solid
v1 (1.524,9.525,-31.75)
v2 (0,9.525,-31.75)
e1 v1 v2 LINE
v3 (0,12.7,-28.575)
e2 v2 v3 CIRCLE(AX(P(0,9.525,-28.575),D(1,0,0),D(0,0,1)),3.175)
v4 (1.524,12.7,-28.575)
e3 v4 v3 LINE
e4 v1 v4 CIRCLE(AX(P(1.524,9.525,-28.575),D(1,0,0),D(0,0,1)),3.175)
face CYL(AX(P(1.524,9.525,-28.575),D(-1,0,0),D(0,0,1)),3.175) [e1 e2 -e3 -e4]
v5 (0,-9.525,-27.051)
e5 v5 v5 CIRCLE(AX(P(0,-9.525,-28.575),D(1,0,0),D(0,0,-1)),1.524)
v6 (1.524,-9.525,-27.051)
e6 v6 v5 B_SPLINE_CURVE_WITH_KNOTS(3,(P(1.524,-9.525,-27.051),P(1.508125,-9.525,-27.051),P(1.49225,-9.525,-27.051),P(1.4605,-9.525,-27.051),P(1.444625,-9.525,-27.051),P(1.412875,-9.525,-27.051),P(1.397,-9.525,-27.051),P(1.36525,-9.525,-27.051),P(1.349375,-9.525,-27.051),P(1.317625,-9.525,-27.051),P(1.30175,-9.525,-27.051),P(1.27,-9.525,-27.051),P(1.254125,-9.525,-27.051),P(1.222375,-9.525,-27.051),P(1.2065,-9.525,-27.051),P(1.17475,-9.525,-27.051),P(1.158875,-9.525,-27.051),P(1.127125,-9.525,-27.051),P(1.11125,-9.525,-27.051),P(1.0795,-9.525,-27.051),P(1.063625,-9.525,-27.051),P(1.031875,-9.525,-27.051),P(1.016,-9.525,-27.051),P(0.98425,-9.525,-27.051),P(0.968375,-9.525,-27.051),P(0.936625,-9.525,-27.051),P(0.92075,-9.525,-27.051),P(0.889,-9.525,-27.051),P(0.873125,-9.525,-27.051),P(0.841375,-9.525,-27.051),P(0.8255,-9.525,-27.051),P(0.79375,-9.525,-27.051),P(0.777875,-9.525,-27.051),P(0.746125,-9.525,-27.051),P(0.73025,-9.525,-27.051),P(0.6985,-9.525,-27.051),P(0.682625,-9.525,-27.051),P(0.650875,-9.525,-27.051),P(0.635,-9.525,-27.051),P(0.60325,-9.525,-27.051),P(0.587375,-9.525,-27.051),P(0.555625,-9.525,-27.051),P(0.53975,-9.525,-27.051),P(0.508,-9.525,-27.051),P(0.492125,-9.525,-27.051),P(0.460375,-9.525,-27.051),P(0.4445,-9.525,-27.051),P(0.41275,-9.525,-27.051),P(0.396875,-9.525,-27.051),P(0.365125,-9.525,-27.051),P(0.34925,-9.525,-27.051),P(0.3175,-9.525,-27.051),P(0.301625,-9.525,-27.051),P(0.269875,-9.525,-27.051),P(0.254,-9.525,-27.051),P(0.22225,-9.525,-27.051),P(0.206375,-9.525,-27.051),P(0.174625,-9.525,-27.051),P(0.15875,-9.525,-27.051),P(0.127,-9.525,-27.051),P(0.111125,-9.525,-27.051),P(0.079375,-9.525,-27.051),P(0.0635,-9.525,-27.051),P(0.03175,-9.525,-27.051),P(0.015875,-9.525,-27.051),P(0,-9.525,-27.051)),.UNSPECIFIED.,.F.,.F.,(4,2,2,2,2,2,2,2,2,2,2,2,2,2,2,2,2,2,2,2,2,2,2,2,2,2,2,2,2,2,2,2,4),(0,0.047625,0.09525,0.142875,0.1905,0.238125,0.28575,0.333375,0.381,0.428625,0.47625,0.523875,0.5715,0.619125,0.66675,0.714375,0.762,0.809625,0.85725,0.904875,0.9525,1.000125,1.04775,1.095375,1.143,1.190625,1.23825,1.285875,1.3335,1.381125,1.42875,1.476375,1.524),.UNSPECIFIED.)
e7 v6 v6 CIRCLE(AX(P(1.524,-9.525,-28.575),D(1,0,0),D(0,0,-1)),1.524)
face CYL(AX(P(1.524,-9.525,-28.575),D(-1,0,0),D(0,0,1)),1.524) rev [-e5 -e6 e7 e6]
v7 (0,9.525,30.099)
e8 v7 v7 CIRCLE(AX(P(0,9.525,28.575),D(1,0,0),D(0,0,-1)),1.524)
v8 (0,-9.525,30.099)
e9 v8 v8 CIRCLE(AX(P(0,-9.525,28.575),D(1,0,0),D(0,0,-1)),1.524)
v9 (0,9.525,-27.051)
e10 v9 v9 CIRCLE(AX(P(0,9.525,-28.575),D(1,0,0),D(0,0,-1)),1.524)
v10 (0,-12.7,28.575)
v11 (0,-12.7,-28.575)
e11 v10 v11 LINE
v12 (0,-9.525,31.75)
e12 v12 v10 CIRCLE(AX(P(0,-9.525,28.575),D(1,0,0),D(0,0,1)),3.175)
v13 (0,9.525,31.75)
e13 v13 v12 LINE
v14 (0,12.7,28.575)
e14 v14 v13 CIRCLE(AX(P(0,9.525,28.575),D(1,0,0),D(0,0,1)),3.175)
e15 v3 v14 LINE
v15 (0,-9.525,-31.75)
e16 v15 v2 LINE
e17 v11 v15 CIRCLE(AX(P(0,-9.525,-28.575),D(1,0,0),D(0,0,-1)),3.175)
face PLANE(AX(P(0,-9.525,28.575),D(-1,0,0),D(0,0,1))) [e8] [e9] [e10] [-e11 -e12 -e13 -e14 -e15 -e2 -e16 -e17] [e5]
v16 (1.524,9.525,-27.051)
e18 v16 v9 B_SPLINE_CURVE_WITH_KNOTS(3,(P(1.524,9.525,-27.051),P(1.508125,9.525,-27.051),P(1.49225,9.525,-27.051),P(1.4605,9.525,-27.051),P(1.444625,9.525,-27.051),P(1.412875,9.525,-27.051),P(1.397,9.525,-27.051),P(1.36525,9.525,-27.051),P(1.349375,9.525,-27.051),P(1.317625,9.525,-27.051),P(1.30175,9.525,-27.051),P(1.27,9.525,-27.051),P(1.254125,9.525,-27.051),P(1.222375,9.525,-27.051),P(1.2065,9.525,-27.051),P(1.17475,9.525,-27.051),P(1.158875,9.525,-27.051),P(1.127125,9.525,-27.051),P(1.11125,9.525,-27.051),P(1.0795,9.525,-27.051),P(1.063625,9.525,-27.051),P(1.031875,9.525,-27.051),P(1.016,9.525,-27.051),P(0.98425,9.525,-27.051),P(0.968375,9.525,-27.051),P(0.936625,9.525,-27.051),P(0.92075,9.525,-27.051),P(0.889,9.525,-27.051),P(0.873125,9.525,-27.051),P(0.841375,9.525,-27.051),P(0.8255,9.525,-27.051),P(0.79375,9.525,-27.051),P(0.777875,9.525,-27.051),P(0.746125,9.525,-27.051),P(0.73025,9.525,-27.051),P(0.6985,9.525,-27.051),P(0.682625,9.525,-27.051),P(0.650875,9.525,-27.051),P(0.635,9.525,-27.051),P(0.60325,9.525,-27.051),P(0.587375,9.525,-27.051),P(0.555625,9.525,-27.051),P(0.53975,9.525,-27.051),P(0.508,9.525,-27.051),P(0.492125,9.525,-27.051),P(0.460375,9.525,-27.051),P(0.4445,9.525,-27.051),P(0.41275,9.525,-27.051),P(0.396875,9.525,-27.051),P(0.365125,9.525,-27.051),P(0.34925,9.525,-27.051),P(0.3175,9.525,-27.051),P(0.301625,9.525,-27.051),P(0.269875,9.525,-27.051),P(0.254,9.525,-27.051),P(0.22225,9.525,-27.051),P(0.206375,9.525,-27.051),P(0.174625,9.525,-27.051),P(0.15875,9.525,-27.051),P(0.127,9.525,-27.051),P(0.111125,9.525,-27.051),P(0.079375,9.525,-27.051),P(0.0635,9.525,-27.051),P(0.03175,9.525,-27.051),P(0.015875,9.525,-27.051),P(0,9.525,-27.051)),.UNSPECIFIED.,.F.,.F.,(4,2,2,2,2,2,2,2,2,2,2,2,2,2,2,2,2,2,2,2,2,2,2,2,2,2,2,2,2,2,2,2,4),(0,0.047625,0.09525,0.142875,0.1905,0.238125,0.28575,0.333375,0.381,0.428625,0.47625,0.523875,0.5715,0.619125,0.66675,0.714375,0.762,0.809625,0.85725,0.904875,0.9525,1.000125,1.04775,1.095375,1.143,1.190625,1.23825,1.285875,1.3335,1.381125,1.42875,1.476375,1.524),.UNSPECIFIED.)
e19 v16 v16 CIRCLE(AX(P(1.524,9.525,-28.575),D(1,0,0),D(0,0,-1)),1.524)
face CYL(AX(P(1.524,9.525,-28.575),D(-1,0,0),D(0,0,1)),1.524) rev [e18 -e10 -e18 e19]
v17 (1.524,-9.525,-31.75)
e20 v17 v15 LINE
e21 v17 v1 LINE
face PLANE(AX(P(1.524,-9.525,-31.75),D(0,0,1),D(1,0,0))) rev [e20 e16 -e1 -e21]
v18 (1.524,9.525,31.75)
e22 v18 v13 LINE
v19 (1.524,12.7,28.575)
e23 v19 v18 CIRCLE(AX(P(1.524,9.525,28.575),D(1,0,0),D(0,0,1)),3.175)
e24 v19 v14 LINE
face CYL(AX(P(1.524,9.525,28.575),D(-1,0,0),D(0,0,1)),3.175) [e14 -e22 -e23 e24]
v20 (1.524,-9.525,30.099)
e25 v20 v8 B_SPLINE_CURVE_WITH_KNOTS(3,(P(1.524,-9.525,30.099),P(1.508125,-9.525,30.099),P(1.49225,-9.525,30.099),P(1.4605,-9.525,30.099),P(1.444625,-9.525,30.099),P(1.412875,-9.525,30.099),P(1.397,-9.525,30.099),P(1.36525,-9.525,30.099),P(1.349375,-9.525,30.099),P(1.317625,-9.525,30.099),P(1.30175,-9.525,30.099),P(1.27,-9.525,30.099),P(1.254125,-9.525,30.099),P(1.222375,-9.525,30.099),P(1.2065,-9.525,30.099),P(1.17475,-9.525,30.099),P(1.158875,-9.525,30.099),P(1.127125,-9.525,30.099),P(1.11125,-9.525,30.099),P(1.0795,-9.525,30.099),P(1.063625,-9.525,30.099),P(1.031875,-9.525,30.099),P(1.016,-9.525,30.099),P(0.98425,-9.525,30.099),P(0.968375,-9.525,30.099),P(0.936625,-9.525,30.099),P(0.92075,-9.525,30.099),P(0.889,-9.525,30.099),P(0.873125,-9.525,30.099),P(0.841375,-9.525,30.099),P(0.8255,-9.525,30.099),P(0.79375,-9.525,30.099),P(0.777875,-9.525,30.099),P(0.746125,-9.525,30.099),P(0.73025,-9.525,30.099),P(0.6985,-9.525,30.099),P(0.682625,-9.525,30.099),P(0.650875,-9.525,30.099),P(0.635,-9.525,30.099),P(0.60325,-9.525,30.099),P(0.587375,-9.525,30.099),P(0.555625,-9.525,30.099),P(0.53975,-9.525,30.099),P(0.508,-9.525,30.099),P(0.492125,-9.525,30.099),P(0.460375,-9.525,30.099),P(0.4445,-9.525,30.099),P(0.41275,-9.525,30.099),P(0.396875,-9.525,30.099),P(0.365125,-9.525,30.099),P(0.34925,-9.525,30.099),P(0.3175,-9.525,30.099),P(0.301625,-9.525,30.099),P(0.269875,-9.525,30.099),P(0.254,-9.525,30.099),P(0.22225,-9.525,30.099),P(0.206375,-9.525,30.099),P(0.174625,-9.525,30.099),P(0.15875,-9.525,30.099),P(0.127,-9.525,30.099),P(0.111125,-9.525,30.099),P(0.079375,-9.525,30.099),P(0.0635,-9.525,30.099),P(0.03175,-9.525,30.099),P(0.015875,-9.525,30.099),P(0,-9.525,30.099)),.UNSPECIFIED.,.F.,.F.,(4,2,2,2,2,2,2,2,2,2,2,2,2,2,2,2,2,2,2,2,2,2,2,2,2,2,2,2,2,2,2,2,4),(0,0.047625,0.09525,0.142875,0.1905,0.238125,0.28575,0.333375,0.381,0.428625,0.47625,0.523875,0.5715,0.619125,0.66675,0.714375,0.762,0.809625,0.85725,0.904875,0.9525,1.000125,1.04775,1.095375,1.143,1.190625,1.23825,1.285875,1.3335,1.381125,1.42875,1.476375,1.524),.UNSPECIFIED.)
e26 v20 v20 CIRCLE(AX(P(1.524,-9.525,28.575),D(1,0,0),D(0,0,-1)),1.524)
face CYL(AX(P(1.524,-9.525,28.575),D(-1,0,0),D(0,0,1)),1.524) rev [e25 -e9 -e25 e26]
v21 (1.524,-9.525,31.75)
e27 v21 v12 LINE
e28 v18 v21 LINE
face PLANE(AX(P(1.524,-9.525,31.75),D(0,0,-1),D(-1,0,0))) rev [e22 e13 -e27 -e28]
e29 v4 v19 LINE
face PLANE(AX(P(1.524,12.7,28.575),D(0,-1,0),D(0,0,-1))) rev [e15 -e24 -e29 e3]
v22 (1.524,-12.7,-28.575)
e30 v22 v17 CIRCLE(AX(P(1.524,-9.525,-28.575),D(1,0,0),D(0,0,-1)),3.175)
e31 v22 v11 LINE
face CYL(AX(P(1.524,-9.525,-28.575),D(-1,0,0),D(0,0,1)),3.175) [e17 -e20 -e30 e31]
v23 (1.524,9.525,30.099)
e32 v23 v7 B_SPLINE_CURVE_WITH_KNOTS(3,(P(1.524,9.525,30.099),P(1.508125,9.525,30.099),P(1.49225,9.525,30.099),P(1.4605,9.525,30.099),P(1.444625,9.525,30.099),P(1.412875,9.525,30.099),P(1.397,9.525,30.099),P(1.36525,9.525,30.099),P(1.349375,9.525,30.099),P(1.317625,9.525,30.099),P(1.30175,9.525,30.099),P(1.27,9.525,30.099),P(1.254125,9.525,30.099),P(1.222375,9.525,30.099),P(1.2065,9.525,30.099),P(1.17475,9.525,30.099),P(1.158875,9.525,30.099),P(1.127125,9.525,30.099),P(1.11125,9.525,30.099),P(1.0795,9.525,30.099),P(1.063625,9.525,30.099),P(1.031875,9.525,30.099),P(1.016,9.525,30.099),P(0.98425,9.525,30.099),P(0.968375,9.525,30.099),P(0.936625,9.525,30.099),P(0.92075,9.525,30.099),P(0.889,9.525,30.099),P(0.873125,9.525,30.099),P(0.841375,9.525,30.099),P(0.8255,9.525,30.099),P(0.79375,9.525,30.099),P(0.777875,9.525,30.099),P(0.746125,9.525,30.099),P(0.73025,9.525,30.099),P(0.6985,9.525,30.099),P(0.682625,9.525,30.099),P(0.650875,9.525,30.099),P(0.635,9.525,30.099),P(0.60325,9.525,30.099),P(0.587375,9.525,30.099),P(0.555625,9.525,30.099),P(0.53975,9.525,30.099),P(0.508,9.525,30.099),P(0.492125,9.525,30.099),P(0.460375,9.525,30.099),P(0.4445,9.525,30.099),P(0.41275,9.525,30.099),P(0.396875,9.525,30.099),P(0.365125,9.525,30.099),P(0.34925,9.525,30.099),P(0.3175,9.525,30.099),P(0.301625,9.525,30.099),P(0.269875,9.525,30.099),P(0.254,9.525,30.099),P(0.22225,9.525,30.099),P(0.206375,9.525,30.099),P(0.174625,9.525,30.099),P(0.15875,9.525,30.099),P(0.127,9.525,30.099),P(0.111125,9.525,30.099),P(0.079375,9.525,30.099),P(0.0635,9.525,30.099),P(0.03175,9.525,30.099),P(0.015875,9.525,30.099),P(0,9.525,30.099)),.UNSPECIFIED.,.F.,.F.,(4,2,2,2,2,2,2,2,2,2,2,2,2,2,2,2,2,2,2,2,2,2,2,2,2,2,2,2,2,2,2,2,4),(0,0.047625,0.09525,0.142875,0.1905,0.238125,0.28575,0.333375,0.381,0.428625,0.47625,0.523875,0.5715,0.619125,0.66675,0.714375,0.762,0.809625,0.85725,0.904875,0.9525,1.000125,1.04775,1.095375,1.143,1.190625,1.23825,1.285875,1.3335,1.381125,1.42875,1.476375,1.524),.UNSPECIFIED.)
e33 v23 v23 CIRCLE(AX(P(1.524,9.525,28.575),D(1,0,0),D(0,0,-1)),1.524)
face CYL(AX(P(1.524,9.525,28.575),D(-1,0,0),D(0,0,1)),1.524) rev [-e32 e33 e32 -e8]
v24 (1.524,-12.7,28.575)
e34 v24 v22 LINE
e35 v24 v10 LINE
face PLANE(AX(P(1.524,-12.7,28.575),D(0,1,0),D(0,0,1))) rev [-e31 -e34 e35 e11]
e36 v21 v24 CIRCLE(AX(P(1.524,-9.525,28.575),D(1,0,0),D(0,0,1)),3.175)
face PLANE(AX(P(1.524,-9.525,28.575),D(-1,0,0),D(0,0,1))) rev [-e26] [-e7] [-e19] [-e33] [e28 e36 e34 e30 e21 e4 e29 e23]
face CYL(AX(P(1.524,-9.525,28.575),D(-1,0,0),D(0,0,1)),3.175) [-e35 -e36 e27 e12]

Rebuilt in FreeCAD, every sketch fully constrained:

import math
import FreeCAD as App
import Part
import Sketcher
Q = App.Units.Quantity

doc = App.newDocument("Part")
body = doc.addObject("PartDesign::Body", "Body")

# Sketch on YZ plane
sketch1 = doc.addObject("Sketcher::SketchObject", "Sketch")
body.addObject(sketch1)
sketch1.AttachmentSupport = (doc.YZ_Plane, [""])
sketch1.MapMode = "FlatFace"
sketch1.addGeometry([
    Part.LineSegment(App.Vector(-12.7, 28.6, 0), App.Vector(-12.7, -28.6, 0)),  # 0
    Part.ArcOfCircle(Part.Circle(App.Vector(-9.5, -28.6, 0), App.Vector(0, 0, 1), 3.2), math.radians(-180), math.radians(-90)),  # 1
    Part.LineSegment(App.Vector(-9.5, -31.8, 0), App.Vector(9.5, -31.8, 0)),  # 2
    Part.ArcOfCircle(Part.Circle(App.Vector(9.5, -28.6, 0), App.Vector(0, 0, 1), 3.2), math.radians(-90), math.radians(0)),  # 3
    Part.LineSegment(App.Vector(12.7, -28.6, 0), App.Vector(12.7, 28.6, 0)),  # 4
    Part.ArcOfCircle(Part.Circle(App.Vector(9.5, 28.6, 0), App.Vector(0, 0, 1), 3.2), math.radians(0), math.radians(90)),  # 5
    Part.LineSegment(App.Vector(9.5, 31.8, 0), App.Vector(-9.5, 31.8, 0)),  # 6
    Part.ArcOfCircle(Part.Circle(App.Vector(-9.5, 28.6, 0), App.Vector(0, 0, 1), 3.2), math.radians(90), math.radians(180)),  # 7
    Part.Circle(App.Vector(-9.5, 28.6, 0), App.Vector(0, 0, 1), 1.5),  # 8
    Part.Circle(App.Vector(-9.5, -28.6, 0), App.Vector(0, 0, 1), 1.5),  # 9
    Part.Circle(App.Vector(9.5, 28.6, 0), App.Vector(0, 0, 1), 1.5),  # 10
    Part.Circle(App.Vector(9.5, -28.6, 0), App.Vector(0, 0, 1), 1.5),  # 11
], False)
sketch1.addConstraint([
    Sketcher.Constraint("Tangent", 0, 2, 1, 1),
    Sketcher.Constraint("Tangent", 1, 2, 2, 1),
    Sketcher.Constraint("Tangent", 2, 2, 3, 1),
    Sketcher.Constraint("Tangent", 3, 2, 4, 1),
    Sketcher.Constraint("Tangent", 4, 2, 5, 1),
    Sketcher.Constraint("Tangent", 5, 2, 6, 1),
    Sketcher.Constraint("Tangent", 6, 2, 7, 1),
    Sketcher.Constraint("Tangent", 7, 2, 0, 1),
    Sketcher.Constraint("Vertical", 0),
    Sketcher.Constraint("Horizontal", 2),
    Sketcher.Constraint("Vertical", 4),
    Sketcher.Constraint("Horizontal", 6),
    Sketcher.Constraint("Coincident", 8, 3, 7, 3),
    Sketcher.Constraint("Coincident", 9, 3, 1, 3),
    Sketcher.Constraint("Coincident", 10, 3, 5, 3),
    Sketcher.Constraint("Coincident", 11, 3, 3, 3),
    Sketcher.Constraint("Equal", 1, 3),
    Sketcher.Constraint("Equal", 3, 5),
    Sketcher.Constraint("Equal", 5, 7),
    Sketcher.Constraint("Equal", 8, 9),
    Sketcher.Constraint("Equal", 9, 10),
    Sketcher.Constraint("Equal", 10, 11),
    Sketcher.Constraint("Symmetric", 1, 3, 5, 3, -1, 1),
    Sketcher.Constraint("Diameter", 8, Q("0.12 in")),
    Sketcher.Constraint("Radius", 1, Q("0.125 in")),
    Sketcher.Constraint("DistanceX", 2, 1, 2, 2, Q("0.75 in")),
    Sketcher.Constraint("DistanceY", 0, 2, 0, 1, Q("2.25 in")),
])
pad1 = doc.addObject("PartDesign::Pad", "Pad")
body.addObject(pad1)
pad1.Profile = sketch1
pad1.Length = Q("0.06 in")

doc.recompute()
